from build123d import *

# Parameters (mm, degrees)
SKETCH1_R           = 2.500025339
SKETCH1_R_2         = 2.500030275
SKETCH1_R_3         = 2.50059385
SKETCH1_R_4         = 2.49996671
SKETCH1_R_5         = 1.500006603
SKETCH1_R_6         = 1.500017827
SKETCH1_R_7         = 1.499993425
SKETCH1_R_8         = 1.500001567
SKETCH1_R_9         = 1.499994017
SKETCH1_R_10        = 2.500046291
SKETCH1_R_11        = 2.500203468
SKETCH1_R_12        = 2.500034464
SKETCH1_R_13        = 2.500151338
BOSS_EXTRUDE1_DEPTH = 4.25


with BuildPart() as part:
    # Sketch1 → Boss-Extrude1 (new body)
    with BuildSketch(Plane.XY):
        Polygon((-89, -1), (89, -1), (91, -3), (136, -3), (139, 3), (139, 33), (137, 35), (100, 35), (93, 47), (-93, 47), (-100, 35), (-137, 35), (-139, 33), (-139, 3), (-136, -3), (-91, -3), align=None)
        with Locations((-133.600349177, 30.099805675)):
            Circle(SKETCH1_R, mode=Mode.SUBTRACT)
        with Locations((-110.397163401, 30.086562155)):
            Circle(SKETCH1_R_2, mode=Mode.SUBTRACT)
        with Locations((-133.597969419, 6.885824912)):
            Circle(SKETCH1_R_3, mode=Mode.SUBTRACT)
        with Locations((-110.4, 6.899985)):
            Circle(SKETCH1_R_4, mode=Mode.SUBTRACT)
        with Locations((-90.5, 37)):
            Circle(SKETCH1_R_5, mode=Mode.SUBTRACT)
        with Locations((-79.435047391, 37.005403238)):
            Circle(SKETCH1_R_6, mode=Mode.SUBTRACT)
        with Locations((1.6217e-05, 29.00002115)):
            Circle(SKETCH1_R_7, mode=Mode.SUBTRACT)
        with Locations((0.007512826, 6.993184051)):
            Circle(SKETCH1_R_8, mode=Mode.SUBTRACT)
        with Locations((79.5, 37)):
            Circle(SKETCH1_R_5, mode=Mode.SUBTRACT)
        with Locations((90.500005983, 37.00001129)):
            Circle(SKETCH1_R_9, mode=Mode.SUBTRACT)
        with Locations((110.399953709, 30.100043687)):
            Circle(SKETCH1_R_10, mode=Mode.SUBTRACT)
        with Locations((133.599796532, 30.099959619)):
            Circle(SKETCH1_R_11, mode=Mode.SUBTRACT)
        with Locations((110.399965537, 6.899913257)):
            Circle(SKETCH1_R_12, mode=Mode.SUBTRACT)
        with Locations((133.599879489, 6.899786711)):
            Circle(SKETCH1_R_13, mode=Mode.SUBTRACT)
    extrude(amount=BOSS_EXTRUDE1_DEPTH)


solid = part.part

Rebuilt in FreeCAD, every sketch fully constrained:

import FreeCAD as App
import Part
import Sketcher


def add_polygon(sketch, points):
    """Adds a closed chain of lines whose ends are joined by coincident constraints."""
    first, n = sketch.GeometryCount, len(points)
    for a, b in zip(points, points[1:] + points[:1]):
        sketch.addGeometry(Part.LineSegment(App.Vector(*a, 0), App.Vector(*b, 0)), False)
    for i in range(n):
        sketch.addConstraint(Sketcher.Constraint("Coincident", first + i, 2, first + (i + 1) % n, 1))

doc = App.newDocument("Part")
params = doc.addObject("Spreadsheet::Sheet", "Params")
for row, (alias, value) in enumerate([
    ("sketch1_width", "178 mm"),
    ("sketch1_width2", "45 mm"),
    ("sketch1_width3", "37 mm"),
    ("sketch1_width4", "186 mm"),
    ("sketch1_height", "30 mm"),
    ("pad1_length", "4.25 mm"),
], start=1):
    params.set(f"A{row}", alias)
    params.set(f"B{row}", "=" + value)
    params.setAlias(f"B{row}", alias)

body = doc.addObject("PartDesign::Body", "Body")

# Sketch on XY plane
sketch1 = doc.addObject("Sketcher::SketchObject", "Sketch")
body.addObject(sketch1)
sketch1.AttachmentSupport = (doc.XY_Plane, [""])
sketch1.MapMode = "FlatFace"
add_polygon(sketch1, [(-89, -1), (89, -1), (91, -3), (136, -3), (139, 3), (139, 33), (137, 35), (100, 35), (93, 47), (-93, 47), (-100, 35), (-137, 35), (-139, 33), (-139, 3), (-136, -3), (-91, -3)])  # lines 0-15
sketch1.addGeometry(Part.Circle(App.Vector(-133.597969, 6.885825, 0), App.Vector(0, 0, 1), 2.500594), False)  # 16
sketch1.addGeometry(Part.Circle(App.Vector(-110.4, 6.899985, 0), App.Vector(0, 0, 1), 2.499967), False)  # 17
sketch1.addGeometry(Part.Circle(App.Vector(0.007513, 6.993184, 0), App.Vector(0, 0, 1), 1.500002), False)  # 18
sketch1.addGeometry(Part.Circle(App.Vector(110.399966, 6.899913, 0), App.Vector(0, 0, 1), 2.500034), False)  # 19
sketch1.addGeometry(Part.Circle(App.Vector(133.599879, 6.899787, 0), App.Vector(0, 0, 1), 2.500151), False)  # 20
sketch1.addGeometry(Part.Circle(App.Vector(-133.600349, 30.099806, 0), App.Vector(0, 0, 1), 2.500025), False)  # 21
sketch1.addGeometry(Part.Circle(App.Vector(-110.397163, 30.086562, 0), App.Vector(0, 0, 1), 2.50003), False)  # 22
sketch1.addGeometry(Part.Circle(App.Vector(-90.5, 37, 0), App.Vector(0, 0, 1), 1.500007), False)  # 23
sketch1.addGeometry(Part.Circle(App.Vector(-79.435047, 37.005403, 0), App.Vector(0, 0, 1), 1.500018), False)  # 24
sketch1.addGeometry(Part.Circle(App.Vector(0.000016, 29.000021, 0), App.Vector(0, 0, 1), 1.499993), False)  # 25
sketch1.addGeometry(Part.Circle(App.Vector(110.399954, 30.100044, 0), App.Vector(0, 0, 1), 2.500046), False)  # 26
sketch1.addGeometry(Part.Circle(App.Vector(133.599797, 30.09996, 0), App.Vector(0, 0, 1), 2.500203), False)  # 27
sketch1.addGeometry(Part.Circle(App.Vector(79.5, 37, 0), App.Vector(0, 0, 1), 1.500007), False)  # 28
sketch1.addGeometry(Part.Circle(App.Vector(90.500006, 37.000011, 0), App.Vector(0, 0, 1), 1.499994), False)  # 29
sketch1.addConstraint(Sketcher.Constraint("Horizontal", 0))
sketch1.addConstraint(Sketcher.Constraint("Horizontal", 2))
sketch1.addConstraint(Sketcher.Constraint("Vertical", 4))
sketch1.addConstraint(Sketcher.Constraint("Horizontal", 6))
sketch1.addConstraint(Sketcher.Constraint("Horizontal", 8))
sketch1.addConstraint(Sketcher.Constraint("Horizontal", 10))
sketch1.addConstraint(Sketcher.Constraint("Vertical", 12))
sketch1.addConstraint(Sketcher.Constraint("Horizontal", 14))
sketch1.addConstraint(Sketcher.Constraint("Equal", 23, 28))
sketch1.addConstraint(Sketcher.Constraint("Equal", 25, 29))
sketch1.addConstraint(Sketcher.Constraint("Symmetric", 6, 2, 9, 2, -2))
sketch1.addConstraint(Sketcher.Constraint("Symmetric", 4, 2, 11, 2, -2))
sketch1.addConstraint(Sketcher.Constraint("Symmetric", 2, 2, 13, 2, -2))
sketch1.addConstraint(Sketcher.Constraint("Parallel", 1, 5))
sketch1.addConstraint(Sketcher.Constraint("Perpendicular", 5, 11))
sketch1.addConstraint(Sketcher.Constraint("Parallel", 11, 15))
sketch1.addConstraint(Sketcher.Constraint("Horizontal", 23, 3, 28, 3))
sketch1.addConstraint(Sketcher.Constraint("Horizontal", 3, 2, 12, 2))
sketch1.addConstraint(Sketcher.Constraint("Equal", 6, 10))
sketch1.addConstraint(Sketcher.Constraint("Equal", 2, 14))
sketch1.addConstraint(Sketcher.Constraint("Equal", 1, 5))
sketch1.addConstraint(Sketcher.Constraint("Equal", 7, 9))
sketch1.addConstraint(Sketcher.Constraint("DistanceX", 0, 1, 0, 2, 178.0))
sketch1.addConstraint(Sketcher.Constraint("DistanceX", 2, 1, 2, 2, 45.0))
sketch1.addConstraint(Sketcher.Constraint("DistanceX", 6, 2, 6, 1, 37.0))
sketch1.addConstraint(Sketcher.Constraint("DistanceX", 8, 2, 8, 1, 186.0))
sketch1.addConstraint(Sketcher.Constraint("DistanceY", 4, 1, 4, 2, 30.0))
sketch1.addConstraint(Sketcher.Constraint("DistanceY", -1, 1, 23, 3, 37.0))
sketch1.addConstraint(Sketcher.Constraint("DistanceY", 0, 2, -1, 1, 1.0))
sketch1.addConstraint(Sketcher.Constraint("DistanceX", -1, 1, 1, 2, 91.0))
sketch1.addConstraint(Sketcher.Constraint("DistanceX", -1, 1, 3, 2, 139.0))
sketch1.addConstraint(Sketcher.Constraint("DistanceY", -1, 1, 3, 2, 3.0))
sketch1.addConstraint(Sketcher.Constraint("DistanceY", -1, 1, 7, 2, 47.0))
sketch1.addConstraint(Sketcher.Constraint("DistanceX", 17, 3, -1, 1, 110.4))
sketch1.addConstraint(Sketcher.Constraint("DistanceX", 23, 3, -1, 1, 90.5))
sketch1.addConstraint(Sketcher.Constraint("DistanceX", -1, 1, 28, 3, 79.5))
sketch1.addConstraint(Sketcher.Constraint("Diameter", 19, 5.000069))
sketch1.addConstraint(Sketcher.Constraint("Diameter", 21, 5.000051))
sketch1.addConstraint(Sketcher.Constraint("Diameter", 22, 5.000061))
sketch1.addConstraint(Sketcher.Constraint("Diameter", 29, 2.999988))
sketch1.addConstraint(Sketcher.Constraint("Diameter", 16, 5.001188))
sketch1.addConstraint(Sketcher.Constraint("Diameter", 17, 4.999933))
sketch1.addConstraint(Sketcher.Constraint("Diameter", 18, 3.000003))
sketch1.addConstraint(Sketcher.Constraint("Diameter", 20, 5.000303))
sketch1.addConstraint(Sketcher.Constraint("Diameter", 23, 3.000013))
sketch1.addConstraint(Sketcher.Constraint("Diameter", 24, 3.000036))
sketch1.addConstraint(Sketcher.Constraint("Diameter", 26, 5.000093))
sketch1.addConstraint(Sketcher.Constraint("Diameter", 27, 5.000407))
sketch1.addConstraint(Sketcher.Constraint("DistanceX", 24, 3, 26, 3, 189.835001))
sketch1.addConstraint(Sketcher.Constraint("DistanceY", 17, 3, 18, 3, 0.093199))
sketch1.addConstraint(Sketcher.Constraint("DistanceY", 20, 3, 17, 3, 0.000198))
sketch1.addConstraint(Sketcher.Constraint("DistanceX", 21, 3, 24, 3, 54.165302))
sketch1.addConstraint(Sketcher.Constraint("DistanceY", 19, 3, 29, 3, 30.100098))
sketch1.addConstraint(Sketcher.Constraint("DistanceX", 16, 3, -1, 1, 133.597969))
sketch1.addConstraint(Sketcher.Constraint("DistanceX", -1, 1, 20, 3, 133.599879))
sketch1.addConstraint(Sketcher.Constraint("DistanceX", 21, 3, -1, 1, 133.600349))
sketch1.addConstraint(Sketcher.Constraint("DistanceY", -1, 1, 25, 3, 29.000021))
sketch1.addConstraint(Sketcher.Constraint("DistanceY", -1, 1, 27, 3, 30.09996))
sketch1.addConstraint(Sketcher.Constraint("DistanceY", -1, 1, 29, 3, 37.000011))
sketch1.addConstraint(Sketcher.Constraint("DistanceY", 16, 3, 17, 3, 0.01416))
sketch1.addConstraint(Sketcher.Constraint("DistanceY", 19, 3, 18, 3, 0.093271))
sketch1.addConstraint(Sketcher.Constraint("DistanceY", 16, 3, 21, 3, 23.213981))
sketch1.addConstraint(Sketcher.Constraint("DistanceY", 18, 3, 22, 3, 23.093378))
sketch1.addConstraint(Sketcher.Constraint("DistanceX", 22, 3, 19, 3, 220.797129))
sketch1.addConstraint(Sketcher.Constraint("DistanceY", 22, 3, 24, 3, 6.918841))
sketch1.addConstraint(Sketcher.Constraint("DistanceX", 22, 3, 25, 3, 110.39718))
sketch1.addConstraint(Sketcher.Constraint("DistanceY", 19, 3, 26, 3, 23.20013))
sketch1.addConstraint(Sketcher.Constraint("DistanceX", 18, 3, 26, 3, 110.392441))
sketch1.addConstraint(Sketcher.Constraint("DistanceX", 19, 3, 27, 3, 23.199831))
sketch1.addConstraint(Sketcher.Constraint("DistanceX", 29, 3, 19, 3, 19.89996))
sketch1.addConstraint(Sketcher.Constraint("DistanceX", -1, 1, 19, 3, 110.399966))
sketch1.setExpression("Constraints[38]", "Params.sketch1_width")
sketch1.setExpression("Constraints[39]", "Params.sketch1_width2")
sketch1.setExpression("Constraints[40]", "Params.sketch1_width3")
sketch1.setExpression("Constraints[41]", "Params.sketch1_width4")
sketch1.setExpression("Constraints[42]", "Params.sketch1_height")
pad1 = doc.addObject("PartDesign::Pad", "Pad")
body.addObject(pad1)
pad1.Profile = sketch1
pad1.setExpression("Length", "Params.pad1_length")

doc.recompute()
